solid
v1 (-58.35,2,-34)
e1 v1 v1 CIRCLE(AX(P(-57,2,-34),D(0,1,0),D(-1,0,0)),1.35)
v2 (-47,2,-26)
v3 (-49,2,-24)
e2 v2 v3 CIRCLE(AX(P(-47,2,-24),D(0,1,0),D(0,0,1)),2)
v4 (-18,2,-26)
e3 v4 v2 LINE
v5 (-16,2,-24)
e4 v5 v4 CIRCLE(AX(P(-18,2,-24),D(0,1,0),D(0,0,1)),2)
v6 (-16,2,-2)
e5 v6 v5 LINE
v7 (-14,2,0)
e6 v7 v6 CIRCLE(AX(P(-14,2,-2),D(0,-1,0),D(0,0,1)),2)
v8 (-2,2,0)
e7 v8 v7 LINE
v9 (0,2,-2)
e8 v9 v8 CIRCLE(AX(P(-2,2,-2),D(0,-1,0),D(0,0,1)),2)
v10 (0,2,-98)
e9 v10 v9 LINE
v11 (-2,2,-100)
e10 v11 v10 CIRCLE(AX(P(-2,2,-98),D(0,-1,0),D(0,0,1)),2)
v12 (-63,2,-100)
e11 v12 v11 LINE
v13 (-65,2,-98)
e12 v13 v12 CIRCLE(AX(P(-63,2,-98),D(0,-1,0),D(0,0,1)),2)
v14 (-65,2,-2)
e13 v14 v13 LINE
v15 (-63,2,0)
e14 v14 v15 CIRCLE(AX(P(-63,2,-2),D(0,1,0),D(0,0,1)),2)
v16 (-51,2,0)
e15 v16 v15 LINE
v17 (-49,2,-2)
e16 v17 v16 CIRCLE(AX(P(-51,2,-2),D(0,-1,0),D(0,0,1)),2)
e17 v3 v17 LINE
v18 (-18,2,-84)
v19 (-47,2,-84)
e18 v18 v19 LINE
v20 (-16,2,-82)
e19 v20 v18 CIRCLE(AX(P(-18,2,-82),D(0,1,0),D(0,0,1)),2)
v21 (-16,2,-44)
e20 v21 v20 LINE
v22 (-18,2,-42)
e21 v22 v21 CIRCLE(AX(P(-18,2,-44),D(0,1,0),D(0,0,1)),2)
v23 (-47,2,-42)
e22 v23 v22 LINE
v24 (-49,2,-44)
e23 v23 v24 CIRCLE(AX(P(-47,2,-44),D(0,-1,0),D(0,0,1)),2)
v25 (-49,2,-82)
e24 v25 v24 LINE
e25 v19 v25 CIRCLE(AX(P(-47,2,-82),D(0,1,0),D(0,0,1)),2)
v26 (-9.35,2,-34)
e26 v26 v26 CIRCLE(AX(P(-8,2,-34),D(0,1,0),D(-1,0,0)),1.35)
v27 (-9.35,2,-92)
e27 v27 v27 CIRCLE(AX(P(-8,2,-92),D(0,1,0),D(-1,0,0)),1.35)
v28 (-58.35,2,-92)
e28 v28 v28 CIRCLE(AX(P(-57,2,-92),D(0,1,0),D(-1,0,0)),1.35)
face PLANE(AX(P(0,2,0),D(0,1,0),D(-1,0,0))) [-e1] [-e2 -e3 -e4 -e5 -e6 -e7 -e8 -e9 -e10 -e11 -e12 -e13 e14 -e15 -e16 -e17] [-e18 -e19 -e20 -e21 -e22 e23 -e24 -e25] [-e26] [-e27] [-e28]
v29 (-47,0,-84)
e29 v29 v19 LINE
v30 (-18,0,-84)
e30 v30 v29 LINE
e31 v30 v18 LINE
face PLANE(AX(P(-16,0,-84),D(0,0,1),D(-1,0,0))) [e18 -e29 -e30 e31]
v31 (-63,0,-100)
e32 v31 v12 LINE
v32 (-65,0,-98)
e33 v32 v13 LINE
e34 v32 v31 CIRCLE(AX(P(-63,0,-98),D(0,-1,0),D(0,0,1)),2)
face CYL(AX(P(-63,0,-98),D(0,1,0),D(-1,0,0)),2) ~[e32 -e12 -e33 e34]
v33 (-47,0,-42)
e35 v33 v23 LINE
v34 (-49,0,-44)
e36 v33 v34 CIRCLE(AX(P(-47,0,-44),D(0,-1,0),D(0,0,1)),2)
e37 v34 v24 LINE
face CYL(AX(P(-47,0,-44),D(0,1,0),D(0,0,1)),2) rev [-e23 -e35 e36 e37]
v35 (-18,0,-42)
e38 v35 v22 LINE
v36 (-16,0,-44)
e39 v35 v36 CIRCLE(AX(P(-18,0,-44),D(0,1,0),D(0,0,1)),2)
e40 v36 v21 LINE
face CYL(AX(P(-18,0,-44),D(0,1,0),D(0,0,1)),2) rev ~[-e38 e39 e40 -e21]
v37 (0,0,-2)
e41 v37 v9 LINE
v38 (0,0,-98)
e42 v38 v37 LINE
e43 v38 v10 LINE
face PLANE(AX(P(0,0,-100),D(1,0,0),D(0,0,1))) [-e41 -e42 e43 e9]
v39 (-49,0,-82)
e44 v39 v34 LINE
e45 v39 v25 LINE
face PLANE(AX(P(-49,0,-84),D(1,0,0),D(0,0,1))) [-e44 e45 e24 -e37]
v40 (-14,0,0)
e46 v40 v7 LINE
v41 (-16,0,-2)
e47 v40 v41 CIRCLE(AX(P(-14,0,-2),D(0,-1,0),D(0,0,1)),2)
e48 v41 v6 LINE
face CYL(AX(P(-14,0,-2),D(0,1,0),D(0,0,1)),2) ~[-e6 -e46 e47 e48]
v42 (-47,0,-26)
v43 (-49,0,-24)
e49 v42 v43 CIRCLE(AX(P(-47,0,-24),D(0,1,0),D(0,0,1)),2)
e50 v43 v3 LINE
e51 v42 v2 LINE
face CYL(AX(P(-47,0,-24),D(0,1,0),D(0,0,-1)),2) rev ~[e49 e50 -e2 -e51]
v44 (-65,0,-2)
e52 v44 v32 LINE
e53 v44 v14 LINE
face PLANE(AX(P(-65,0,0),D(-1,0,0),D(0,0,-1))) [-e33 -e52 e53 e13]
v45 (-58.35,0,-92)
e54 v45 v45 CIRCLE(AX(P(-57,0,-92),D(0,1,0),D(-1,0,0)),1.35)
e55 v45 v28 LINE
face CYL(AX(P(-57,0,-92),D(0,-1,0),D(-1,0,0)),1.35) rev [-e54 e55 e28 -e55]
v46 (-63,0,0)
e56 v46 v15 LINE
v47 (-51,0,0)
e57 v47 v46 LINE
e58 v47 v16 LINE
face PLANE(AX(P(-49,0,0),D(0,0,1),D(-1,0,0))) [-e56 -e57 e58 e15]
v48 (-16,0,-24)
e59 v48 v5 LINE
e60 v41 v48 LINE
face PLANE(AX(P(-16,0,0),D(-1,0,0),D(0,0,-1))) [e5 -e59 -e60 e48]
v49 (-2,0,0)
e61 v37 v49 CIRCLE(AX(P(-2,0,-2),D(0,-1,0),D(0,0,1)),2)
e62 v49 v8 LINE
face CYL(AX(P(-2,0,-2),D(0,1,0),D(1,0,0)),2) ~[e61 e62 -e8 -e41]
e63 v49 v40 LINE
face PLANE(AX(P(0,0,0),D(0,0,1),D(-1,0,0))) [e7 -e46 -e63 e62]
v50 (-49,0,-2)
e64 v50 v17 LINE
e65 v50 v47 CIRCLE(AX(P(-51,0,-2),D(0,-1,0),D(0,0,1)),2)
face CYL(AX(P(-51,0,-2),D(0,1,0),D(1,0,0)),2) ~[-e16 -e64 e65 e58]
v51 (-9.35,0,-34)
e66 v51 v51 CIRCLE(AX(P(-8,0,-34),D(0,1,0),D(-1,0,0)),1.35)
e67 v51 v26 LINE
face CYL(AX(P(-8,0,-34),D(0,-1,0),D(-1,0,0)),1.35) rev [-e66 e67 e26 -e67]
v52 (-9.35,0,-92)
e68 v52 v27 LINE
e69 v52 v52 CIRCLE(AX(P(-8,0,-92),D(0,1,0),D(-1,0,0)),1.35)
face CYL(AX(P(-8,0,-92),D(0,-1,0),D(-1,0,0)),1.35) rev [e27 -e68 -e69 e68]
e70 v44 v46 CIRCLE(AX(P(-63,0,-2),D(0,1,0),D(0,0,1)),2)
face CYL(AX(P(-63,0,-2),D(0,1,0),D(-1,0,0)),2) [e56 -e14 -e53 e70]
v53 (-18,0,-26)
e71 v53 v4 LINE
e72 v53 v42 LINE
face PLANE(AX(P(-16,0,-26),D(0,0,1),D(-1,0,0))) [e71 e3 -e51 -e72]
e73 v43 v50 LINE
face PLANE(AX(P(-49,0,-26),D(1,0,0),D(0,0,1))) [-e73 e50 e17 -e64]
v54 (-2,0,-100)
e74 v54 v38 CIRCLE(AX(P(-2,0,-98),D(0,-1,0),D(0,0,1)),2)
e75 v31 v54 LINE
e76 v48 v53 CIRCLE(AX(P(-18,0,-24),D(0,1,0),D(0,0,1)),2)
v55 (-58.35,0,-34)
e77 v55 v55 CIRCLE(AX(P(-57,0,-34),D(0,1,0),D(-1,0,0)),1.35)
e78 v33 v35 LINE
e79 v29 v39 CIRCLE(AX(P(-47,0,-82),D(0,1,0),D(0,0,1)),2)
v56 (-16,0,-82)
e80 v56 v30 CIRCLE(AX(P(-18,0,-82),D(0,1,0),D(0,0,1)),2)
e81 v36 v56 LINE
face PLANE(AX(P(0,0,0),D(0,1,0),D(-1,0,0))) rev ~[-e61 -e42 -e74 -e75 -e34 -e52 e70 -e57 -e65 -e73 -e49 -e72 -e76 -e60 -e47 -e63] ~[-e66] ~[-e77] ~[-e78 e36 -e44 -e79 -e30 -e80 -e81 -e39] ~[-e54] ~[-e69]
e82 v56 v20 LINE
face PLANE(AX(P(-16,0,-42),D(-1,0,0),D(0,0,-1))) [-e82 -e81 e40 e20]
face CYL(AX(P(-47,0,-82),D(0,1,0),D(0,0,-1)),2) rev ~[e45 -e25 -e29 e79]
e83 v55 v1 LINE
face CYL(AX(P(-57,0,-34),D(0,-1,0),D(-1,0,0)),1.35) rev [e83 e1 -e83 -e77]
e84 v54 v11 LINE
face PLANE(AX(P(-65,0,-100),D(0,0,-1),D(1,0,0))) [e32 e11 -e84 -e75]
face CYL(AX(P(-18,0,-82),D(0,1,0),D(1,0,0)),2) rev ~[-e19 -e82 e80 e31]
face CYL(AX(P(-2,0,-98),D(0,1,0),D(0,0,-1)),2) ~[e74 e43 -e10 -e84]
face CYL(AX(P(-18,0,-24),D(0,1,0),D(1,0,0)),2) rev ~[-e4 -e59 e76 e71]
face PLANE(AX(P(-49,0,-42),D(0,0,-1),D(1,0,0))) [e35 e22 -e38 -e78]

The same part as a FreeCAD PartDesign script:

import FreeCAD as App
import Part
import Sketcher
from FreeCAD import Vector


def edges_at(feature, points):
    """Names of the edges that pass closest to the given points."""
    edges = feature.Shape.Edges
    near = lambda p: min(range(len(edges)), key=lambda i: edges[i].distToShape(Part.Vertex(*p))[0])
    return sorted({f"Edge{near(p) + 1}" for p in points})

doc = App.newDocument("Part")
params = doc.addObject("Spreadsheet::Sheet", "Params")
for row, (alias, value) in enumerate([
    ("sketch1_diameter", "2.7 mm"),
    ("sketch1_width", "65 mm"),
    ("sketch1_height", "100 mm"),
    ("pad1_length", "2 mm"),
    ("fillet_radius", "2 mm"),
], start=1):
    params.set(f"A{row}", alias)
    params.set(f"B{row}", "=" + value)
    params.setAlias(f"B{row}", alias)

body = doc.addObject("PartDesign::Body", "Body")

# Sketch on XZ plane
sketch1 = body.newObject("Sketcher::SketchObject", "Sketch")
sketch1.AttachmentSupport = (doc.getObject("XZ_Plane"), [""])
sketch1.MapMode = "FlatFace"
sketch1.addGeometry([
    Part.LineSegment(Vector(-65, -100, 0), Vector(-65, 0, 0)),  # 0
    Part.LineSegment(Vector(-65, 0, 0), Vector(-49, 0, 0)),  # 1
    Part.LineSegment(Vector(-49, 0, 0), Vector(-49, -26, 0)),  # 2
    Part.LineSegment(Vector(-49, -26, 0), Vector(-16, -26, 0)),  # 3
    Part.LineSegment(Vector(-16, -26, 0), Vector(-16, 0, 0)),  # 4
    Part.LineSegment(Vector(-16, 0, 0), Vector(0, 0, 0)),  # 5
    Part.LineSegment(Vector(0, 0, 0), Vector(0, -100, 0)),  # 6
    Part.LineSegment(Vector(0, -100, 0), Vector(-65, -100, 0)),  # 7
    Part.Circle(Vector(-8, -92, 0), Vector(0, 0, 1), 1.4),  # 8
    Part.Circle(Vector(-57, -92, 0), Vector(0, 0, 1), 1.4),  # 9
    Part.LineSegment(Vector(-16, -42, 0), Vector(-49, -42, 0)),  # 10
    Part.LineSegment(Vector(-49, -42, 0), Vector(-49, -84, 0)),  # 11
    Part.LineSegment(Vector(-49, -84, 0), Vector(-16, -84, 0)),  # 12
    Part.LineSegment(Vector(-16, -84, 0), Vector(-16, -42, 0)),  # 13
    Part.Circle(Vector(-8, -34, 0), Vector(0, 0, 1), 1.4),  # 14
    Part.Circle(Vector(-57, -34, 0), Vector(0, 0, 1), 1.4),  # 15
], False)
sketch1.addConstraint([
    Sketcher.Constraint("Coincident", 0, 2, 1, 1),
    Sketcher.Constraint("Coincident", 1, 2, 2, 1),
    Sketcher.Constraint("Coincident", 2, 2, 3, 1),
    Sketcher.Constraint("Coincident", 3, 2, 4, 1),
    Sketcher.Constraint("Coincident", 4, 2, 5, 1),
    Sketcher.Constraint("Coincident", 5, 2, 6, 1),
    Sketcher.Constraint("Coincident", 6, 2, 7, 1),
    Sketcher.Constraint("Coincident", 7, 2, 0, 1),
    Sketcher.Constraint("Coincident", 10, 2, 11, 1),
    Sketcher.Constraint("Coincident", 11, 2, 12, 1),
    Sketcher.Constraint("Coincident", 12, 2, 13, 1),
    Sketcher.Constraint("Coincident", 13, 2, 10, 1),
    Sketcher.Constraint("Vertical", 0),
    Sketcher.Constraint("Horizontal", 1),
    Sketcher.Constraint("Vertical", 2),
    Sketcher.Constraint("Horizontal", 3),
    Sketcher.Constraint("Vertical", 4),
    Sketcher.Constraint("Horizontal", 5),
    Sketcher.Constraint("Vertical", 6),
    Sketcher.Constraint("Horizontal", 7),
    Sketcher.Constraint("Horizontal", 10),
    Sketcher.Constraint("Vertical", 11),
    Sketcher.Constraint("Horizontal", 12),
    Sketcher.Constraint("Vertical", 13),
    Sketcher.Constraint("Coincident", 5, 2, -1, 1),
    Sketcher.Constraint("Equal", 8, 9),
    Sketcher.Constraint("Equal", 9, 14),
    Sketcher.Constraint("Equal", 14, 15),
    Sketcher.Constraint("PointOnObject", 0, 2, -1),
    Sketcher.Constraint("Horizontal", 8, 3, 9, 3),
    Sketcher.Constraint("Horizontal", 14, 3, 15, 3),
    Sketcher.Constraint("Vertical", 8, 3, 14, 3),
    Sketcher.Constraint("Vertical", 9, 3, 15, 3),
    Sketcher.Constraint("Vertical", 2, 2, 10, 2),
    Sketcher.Constraint("Vertical", 4, 2, 12, 2),
    Sketcher.Constraint("Equal", 1, 5),
    Sketcher.Constraint("Diameter", 8, 2.7),
    Sketcher.Constraint("DistanceX", 7, 2, 7, 1, 65.0),
    Sketcher.Constraint("DistanceY", 0, 1, 0, 2, 100.0),
    Sketcher.Constraint("DistanceX", 8, 3, -1, 1, 8.0),
    Sketcher.Constraint("DistanceX", 1, 2, -1, 1, 49.0),
    Sketcher.Constraint("DistanceX", 9, 3, 8, 3, 49.0),
    Sketcher.Constraint("DistanceY", 8, 3, 14, 3, 58.0),
    Sketcher.Constraint("DistanceY", 15, 3, 2, 2, 8.0),
    Sketcher.Constraint("DistanceY", 6, 2, 8, 3, 8.0),
    Sketcher.Constraint("DistanceY", 10, 2, 15, 3, 8.0),
    Sketcher.Constraint("DistanceY", 9, 3, 11, 2, 8.0),
])
sketch1.setExpression("Constraints[36]", "Params.sketch1_diameter")
sketch1.setExpression("Constraints[37]", "Params.sketch1_width")
sketch1.setExpression("Constraints[38]", "Params.sketch1_height")
pad1 = body.newObject("PartDesign::Pad", "Pad")
pad1.Profile = sketch1
pad1.setExpression("Length", "Params.pad1_length")
pad1.Reversed = True
doc.recompute()

fillet = body.newObject("PartDesign::Fillet", "Fillet")
fillet.Base = (pad1, edges_at(pad1, [
    (-49, 1, -84),
    (-49, 1, -42),
    (-16, 1, -42),
    (-16, 1, -84),
    (-65, 1, -100),
    (0, 1, -100),
    (0, 1, 0),
    (-65, 1, 0),
    (-49, 1, 0),
    (-49, 1, -26),
    (-16, 1, -26),
    (-16, 1, 0),
]))
fillet.setExpression("Radius", "Params.fillet_radius")

doc.recompute()
